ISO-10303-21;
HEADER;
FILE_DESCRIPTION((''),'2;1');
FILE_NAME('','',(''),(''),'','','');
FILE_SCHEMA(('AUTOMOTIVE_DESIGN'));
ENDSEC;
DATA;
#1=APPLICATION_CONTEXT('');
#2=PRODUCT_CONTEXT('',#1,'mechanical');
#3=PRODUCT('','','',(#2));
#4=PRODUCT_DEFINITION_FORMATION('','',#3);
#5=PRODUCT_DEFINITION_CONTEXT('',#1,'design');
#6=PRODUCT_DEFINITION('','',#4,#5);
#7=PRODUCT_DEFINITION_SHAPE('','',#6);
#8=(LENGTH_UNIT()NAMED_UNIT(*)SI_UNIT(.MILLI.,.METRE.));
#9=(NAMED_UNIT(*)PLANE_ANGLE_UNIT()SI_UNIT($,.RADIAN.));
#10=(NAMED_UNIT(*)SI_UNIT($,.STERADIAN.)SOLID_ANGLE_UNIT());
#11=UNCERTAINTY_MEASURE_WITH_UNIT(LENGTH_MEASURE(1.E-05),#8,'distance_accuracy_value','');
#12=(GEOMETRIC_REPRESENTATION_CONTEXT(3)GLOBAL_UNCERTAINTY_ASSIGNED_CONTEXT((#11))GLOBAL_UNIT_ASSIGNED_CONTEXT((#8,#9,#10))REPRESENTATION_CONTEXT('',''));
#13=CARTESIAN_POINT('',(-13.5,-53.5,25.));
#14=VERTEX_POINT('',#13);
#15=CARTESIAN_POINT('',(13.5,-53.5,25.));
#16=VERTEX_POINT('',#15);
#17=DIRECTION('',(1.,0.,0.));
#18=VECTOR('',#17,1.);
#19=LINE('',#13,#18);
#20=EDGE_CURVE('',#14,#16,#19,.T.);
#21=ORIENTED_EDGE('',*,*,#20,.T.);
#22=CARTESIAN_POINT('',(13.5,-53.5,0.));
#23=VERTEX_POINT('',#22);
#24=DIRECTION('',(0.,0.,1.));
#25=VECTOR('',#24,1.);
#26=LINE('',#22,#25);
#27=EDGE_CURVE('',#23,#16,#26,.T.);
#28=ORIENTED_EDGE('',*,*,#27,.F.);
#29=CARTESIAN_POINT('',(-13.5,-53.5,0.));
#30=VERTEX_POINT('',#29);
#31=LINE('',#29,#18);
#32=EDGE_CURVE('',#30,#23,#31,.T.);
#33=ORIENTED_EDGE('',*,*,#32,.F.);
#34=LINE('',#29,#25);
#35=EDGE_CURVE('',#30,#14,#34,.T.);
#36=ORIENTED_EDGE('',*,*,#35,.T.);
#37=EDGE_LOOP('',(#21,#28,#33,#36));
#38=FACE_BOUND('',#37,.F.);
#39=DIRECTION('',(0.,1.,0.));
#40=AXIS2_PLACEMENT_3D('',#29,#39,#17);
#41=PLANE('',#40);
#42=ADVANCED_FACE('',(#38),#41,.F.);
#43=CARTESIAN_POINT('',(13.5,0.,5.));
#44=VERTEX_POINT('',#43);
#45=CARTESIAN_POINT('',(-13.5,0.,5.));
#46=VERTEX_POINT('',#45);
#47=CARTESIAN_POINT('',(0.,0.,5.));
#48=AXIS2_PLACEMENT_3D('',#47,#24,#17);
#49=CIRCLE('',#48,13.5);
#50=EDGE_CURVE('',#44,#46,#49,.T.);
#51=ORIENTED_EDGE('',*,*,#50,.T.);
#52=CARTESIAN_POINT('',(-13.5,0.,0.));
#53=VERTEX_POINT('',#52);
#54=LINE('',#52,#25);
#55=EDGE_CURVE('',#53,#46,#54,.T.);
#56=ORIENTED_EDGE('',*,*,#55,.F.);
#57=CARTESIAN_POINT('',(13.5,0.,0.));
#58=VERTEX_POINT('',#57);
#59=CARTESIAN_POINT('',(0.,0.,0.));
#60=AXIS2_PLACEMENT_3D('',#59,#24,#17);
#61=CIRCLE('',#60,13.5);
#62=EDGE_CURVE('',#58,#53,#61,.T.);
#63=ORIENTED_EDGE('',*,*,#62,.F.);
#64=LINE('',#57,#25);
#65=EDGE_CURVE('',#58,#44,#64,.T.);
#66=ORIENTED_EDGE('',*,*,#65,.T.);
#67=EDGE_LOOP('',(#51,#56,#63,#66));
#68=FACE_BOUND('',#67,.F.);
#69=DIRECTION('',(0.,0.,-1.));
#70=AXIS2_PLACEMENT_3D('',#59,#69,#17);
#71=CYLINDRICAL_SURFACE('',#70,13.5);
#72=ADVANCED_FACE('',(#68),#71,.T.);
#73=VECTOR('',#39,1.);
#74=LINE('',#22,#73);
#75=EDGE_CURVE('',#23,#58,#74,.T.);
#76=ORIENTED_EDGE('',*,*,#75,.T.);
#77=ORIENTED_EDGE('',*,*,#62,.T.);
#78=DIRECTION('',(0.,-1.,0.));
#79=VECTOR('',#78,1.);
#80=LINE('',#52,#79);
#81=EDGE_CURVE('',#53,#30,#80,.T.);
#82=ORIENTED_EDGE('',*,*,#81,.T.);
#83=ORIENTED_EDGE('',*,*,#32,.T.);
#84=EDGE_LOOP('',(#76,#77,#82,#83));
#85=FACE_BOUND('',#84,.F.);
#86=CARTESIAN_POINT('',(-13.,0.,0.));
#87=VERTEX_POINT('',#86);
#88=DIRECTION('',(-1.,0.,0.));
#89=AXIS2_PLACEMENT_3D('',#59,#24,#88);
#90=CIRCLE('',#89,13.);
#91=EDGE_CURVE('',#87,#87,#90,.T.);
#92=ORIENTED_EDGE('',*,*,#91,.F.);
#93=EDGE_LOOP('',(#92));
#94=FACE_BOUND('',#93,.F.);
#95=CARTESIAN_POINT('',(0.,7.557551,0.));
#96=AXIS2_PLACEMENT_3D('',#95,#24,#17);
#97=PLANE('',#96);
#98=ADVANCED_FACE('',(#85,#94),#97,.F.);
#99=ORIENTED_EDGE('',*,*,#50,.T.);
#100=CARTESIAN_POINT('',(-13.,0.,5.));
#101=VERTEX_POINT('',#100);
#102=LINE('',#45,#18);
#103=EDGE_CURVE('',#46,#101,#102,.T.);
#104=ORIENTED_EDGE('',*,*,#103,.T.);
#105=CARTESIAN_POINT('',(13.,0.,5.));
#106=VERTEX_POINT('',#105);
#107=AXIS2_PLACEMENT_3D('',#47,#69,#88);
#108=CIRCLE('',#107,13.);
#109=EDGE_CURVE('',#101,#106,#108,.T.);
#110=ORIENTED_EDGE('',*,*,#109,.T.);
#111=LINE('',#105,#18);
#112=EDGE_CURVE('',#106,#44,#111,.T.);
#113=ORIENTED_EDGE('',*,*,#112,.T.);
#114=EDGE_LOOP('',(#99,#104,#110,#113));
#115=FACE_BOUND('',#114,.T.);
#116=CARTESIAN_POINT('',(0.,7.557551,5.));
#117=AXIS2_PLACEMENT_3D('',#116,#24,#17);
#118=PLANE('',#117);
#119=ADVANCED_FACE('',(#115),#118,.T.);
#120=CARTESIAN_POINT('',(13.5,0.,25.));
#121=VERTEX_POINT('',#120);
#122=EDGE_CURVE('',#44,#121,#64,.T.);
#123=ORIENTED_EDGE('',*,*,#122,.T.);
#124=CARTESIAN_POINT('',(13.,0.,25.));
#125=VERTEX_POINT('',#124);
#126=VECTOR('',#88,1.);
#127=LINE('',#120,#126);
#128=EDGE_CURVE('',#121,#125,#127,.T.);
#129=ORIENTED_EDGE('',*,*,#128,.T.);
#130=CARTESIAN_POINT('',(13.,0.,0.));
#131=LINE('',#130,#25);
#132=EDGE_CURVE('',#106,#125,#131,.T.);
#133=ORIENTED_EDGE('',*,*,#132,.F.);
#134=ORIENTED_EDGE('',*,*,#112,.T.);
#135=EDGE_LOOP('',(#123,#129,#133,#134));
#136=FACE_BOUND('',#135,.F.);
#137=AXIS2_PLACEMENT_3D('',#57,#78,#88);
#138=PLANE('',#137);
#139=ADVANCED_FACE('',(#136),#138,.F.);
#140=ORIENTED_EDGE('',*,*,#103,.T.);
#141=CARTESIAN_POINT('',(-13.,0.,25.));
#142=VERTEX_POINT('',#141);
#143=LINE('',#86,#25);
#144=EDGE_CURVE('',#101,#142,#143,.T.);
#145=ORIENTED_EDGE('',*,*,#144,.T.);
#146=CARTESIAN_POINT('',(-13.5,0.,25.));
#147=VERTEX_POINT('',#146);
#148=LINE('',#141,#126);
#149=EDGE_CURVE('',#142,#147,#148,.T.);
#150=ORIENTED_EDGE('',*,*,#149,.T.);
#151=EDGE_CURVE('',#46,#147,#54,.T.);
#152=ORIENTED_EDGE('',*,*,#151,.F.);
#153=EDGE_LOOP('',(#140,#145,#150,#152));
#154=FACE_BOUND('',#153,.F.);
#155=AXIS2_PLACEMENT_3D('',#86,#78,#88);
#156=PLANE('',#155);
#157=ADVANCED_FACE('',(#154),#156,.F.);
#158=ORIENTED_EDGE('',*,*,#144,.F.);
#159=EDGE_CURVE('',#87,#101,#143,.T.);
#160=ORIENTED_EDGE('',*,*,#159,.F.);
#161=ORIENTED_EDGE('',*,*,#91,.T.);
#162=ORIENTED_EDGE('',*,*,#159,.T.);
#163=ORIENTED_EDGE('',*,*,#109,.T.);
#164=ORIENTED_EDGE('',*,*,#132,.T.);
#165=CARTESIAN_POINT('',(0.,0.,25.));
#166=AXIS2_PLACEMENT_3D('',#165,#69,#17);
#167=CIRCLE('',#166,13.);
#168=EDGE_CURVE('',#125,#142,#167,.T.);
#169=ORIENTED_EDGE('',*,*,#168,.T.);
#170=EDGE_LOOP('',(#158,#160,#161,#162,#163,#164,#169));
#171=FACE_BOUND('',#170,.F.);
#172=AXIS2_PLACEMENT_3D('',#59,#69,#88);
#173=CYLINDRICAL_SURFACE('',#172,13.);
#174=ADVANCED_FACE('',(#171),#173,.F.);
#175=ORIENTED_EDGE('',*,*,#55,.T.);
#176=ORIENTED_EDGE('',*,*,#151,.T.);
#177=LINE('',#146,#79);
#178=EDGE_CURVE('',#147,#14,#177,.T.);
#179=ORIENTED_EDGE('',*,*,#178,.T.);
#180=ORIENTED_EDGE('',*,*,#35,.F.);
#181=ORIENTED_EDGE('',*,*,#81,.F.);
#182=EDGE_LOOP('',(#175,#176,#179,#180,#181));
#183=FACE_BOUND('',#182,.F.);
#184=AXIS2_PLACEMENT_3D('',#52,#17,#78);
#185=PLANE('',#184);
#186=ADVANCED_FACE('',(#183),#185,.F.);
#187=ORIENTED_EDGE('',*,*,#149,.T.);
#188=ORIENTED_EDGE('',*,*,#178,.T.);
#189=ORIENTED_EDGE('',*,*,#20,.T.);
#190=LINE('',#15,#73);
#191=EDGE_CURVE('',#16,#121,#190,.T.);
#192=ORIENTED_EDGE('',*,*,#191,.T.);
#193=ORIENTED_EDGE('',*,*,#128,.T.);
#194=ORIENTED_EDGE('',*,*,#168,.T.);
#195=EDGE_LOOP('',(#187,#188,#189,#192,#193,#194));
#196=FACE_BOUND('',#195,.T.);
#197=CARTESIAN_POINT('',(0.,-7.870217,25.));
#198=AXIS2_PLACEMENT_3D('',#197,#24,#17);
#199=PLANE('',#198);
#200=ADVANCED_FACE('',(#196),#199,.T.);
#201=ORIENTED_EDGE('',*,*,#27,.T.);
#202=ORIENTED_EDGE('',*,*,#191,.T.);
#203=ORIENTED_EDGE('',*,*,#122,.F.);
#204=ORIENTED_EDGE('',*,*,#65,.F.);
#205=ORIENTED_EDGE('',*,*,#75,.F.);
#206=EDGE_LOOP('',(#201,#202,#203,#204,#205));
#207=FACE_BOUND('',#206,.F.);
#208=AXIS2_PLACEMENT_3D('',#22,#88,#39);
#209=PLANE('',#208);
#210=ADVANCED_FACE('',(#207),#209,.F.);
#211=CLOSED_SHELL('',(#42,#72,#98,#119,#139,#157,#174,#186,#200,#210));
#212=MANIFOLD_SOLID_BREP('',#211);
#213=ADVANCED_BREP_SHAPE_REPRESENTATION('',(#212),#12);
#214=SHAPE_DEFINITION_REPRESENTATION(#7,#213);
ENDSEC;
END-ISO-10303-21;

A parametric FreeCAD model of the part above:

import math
import FreeCAD as App
import Part
import Sketcher

V = App.Vector

doc = App.newDocument("Part")
params = doc.addObject("Spreadsheet::Sheet", "Params")
for row, (alias, value) in enumerate([
    ("sketch1_radius", "13 mm"),
    ("sketch1_width", "27 mm"),
    ("sketch1_height", "53.5 mm"),
    ("pad1_length", "25 mm"),
    ("sketch2_radius", "13 mm"),
    ("sketch2_radius2", "13.5 mm"),
    ("pad2_length", "5 mm"),
], start=1):
    params.set(f"A{row}", alias)
    params.set(f"B{row}", "=" + value)
    params.setAlias(f"B{row}", alias)

body = doc.addObject("PartDesign::Body", "Body")

sketch1 = body.newObject("Sketcher::SketchObject", "Sketch")
sketch1.AttachmentSupport = (doc.getObject("XY_Plane"), [""])
sketch1.MapMode = "FlatFace"
sketch1.addGeometry([
    Part.LineSegment(V(13.5, 0, 0), V(13, 0, 0)),
    Part.ArcOfCircle(Part.Circle(V(0, 0, 0), V(0, 0, 1), 13), math.radians(180), math.radians(360)),
    Part.LineSegment(V(-13, 0, 0), V(-13.5, 0, 0)),
    Part.LineSegment(V(-13.5, 0, 0), V(-13.5, -53.5, 0)),
    Part.LineSegment(V(-13.5, -53.5, 0), V(13.5, -53.5, 0)),
    Part.LineSegment(V(13.5, -53.5, 0), V(13.5, 0, 0)),
], False)
sketch1.addConstraint([
    Sketcher.Constraint("Coincident", 0, 2, 1, 2),
    Sketcher.Constraint("Coincident", 1, 1, 2, 1),
    Sketcher.Constraint("Coincident", 2, 2, 3, 1),
    Sketcher.Constraint("Coincident", 3, 2, 4, 1),
    Sketcher.Constraint("Coincident", 4, 2, 5, 1),
    Sketcher.Constraint("Coincident", 5, 2, 0, 1),
    Sketcher.Constraint("Horizontal", 0),
    Sketcher.Constraint("Horizontal", 2),
    Sketcher.Constraint("Vertical", 3),
    Sketcher.Constraint("Horizontal", 4),
    Sketcher.Constraint("Vertical", 5),
    Sketcher.Constraint("Coincident", 1, 3, -1, 1),
    Sketcher.Constraint("Symmetric", 2, 2, 5, 2, -1, 1),
    Sketcher.Constraint("PointOnObject", 0, 2, -1),
    Sketcher.Constraint("Radius", 1, 13.0),
    Sketcher.Constraint("DistanceX", 4, 1, 4, 2, 27.0),
    Sketcher.Constraint("DistanceY", 3, 2, 3, 1, 53.5),
])
sketch1.setExpression("Constraints[14]", "Params.sketch1_radius")
sketch1.setExpression("Constraints[15]", "Params.sketch1_width")
sketch1.setExpression("Constraints[16]", "Params.sketch1_height")
pad1 = body.newObject("PartDesign::Pad", "Pad")
pad1.Profile = sketch1
pad1.setExpression("Length", "Params.pad1_length")

sketch2 = body.newObject("Sketcher::SketchObject", "Sketch001")
sketch2.AttachmentSupport = (doc.getObject("XY_Plane"), [""])
sketch2.MapMode = "FlatFace"
sketch2.addGeometry([
    Part.LineSegment(V(13, 0, 0), V(13.5, 0, 0)),
    Part.ArcOfCircle(Part.Circle(V(0, 0, 0), V(0, 0, 1), 13.5), math.radians(0), math.radians(180)),
    Part.LineSegment(V(-13.5, 0, 0), V(-13, 0, 0)),
    Part.ArcOfCircle(Part.Circle(V(0, 0, 0), V(0, 0, 1), 13), math.radians(0), math.radians(180)),
], False)
sketch2.addConstraint([
    Sketcher.Constraint("Coincident", 0, 2, 1, 1),
    Sketcher.Constraint("Coincident", 1, 2, 2, 1),
    Sketcher.Constraint("Coincident", 2, 2, 3, 2),
    Sketcher.Constraint("Coincident", 3, 1, 0, 1),
    Sketcher.Constraint("Horizontal", 0),
    Sketcher.Constraint("Horizontal", 2),
    Sketcher.Constraint("Coincident", 1, 3, -1, 1),
    Sketcher.Constraint("Coincident", 3, 3, -1, 1),
    Sketcher.Constraint("PointOnObject", 0, 2, -1),
    Sketcher.Constraint("PointOnObject", 1, 2, -1),
    Sketcher.Constraint("Radius", 3, 13.0),
    Sketcher.Constraint("Radius", 1, 13.5),
])
sketch2.setExpression("Constraints[10]", "Params.sketch2_radius")
sketch2.setExpression("Constraints[11]", "Params.sketch2_radius2")
pad2 = body.newObject("PartDesign::Pad", "Pad001")
pad2.Profile = sketch2
pad2.setExpression("Length", "Params.pad2_length")

doc.recompute()
